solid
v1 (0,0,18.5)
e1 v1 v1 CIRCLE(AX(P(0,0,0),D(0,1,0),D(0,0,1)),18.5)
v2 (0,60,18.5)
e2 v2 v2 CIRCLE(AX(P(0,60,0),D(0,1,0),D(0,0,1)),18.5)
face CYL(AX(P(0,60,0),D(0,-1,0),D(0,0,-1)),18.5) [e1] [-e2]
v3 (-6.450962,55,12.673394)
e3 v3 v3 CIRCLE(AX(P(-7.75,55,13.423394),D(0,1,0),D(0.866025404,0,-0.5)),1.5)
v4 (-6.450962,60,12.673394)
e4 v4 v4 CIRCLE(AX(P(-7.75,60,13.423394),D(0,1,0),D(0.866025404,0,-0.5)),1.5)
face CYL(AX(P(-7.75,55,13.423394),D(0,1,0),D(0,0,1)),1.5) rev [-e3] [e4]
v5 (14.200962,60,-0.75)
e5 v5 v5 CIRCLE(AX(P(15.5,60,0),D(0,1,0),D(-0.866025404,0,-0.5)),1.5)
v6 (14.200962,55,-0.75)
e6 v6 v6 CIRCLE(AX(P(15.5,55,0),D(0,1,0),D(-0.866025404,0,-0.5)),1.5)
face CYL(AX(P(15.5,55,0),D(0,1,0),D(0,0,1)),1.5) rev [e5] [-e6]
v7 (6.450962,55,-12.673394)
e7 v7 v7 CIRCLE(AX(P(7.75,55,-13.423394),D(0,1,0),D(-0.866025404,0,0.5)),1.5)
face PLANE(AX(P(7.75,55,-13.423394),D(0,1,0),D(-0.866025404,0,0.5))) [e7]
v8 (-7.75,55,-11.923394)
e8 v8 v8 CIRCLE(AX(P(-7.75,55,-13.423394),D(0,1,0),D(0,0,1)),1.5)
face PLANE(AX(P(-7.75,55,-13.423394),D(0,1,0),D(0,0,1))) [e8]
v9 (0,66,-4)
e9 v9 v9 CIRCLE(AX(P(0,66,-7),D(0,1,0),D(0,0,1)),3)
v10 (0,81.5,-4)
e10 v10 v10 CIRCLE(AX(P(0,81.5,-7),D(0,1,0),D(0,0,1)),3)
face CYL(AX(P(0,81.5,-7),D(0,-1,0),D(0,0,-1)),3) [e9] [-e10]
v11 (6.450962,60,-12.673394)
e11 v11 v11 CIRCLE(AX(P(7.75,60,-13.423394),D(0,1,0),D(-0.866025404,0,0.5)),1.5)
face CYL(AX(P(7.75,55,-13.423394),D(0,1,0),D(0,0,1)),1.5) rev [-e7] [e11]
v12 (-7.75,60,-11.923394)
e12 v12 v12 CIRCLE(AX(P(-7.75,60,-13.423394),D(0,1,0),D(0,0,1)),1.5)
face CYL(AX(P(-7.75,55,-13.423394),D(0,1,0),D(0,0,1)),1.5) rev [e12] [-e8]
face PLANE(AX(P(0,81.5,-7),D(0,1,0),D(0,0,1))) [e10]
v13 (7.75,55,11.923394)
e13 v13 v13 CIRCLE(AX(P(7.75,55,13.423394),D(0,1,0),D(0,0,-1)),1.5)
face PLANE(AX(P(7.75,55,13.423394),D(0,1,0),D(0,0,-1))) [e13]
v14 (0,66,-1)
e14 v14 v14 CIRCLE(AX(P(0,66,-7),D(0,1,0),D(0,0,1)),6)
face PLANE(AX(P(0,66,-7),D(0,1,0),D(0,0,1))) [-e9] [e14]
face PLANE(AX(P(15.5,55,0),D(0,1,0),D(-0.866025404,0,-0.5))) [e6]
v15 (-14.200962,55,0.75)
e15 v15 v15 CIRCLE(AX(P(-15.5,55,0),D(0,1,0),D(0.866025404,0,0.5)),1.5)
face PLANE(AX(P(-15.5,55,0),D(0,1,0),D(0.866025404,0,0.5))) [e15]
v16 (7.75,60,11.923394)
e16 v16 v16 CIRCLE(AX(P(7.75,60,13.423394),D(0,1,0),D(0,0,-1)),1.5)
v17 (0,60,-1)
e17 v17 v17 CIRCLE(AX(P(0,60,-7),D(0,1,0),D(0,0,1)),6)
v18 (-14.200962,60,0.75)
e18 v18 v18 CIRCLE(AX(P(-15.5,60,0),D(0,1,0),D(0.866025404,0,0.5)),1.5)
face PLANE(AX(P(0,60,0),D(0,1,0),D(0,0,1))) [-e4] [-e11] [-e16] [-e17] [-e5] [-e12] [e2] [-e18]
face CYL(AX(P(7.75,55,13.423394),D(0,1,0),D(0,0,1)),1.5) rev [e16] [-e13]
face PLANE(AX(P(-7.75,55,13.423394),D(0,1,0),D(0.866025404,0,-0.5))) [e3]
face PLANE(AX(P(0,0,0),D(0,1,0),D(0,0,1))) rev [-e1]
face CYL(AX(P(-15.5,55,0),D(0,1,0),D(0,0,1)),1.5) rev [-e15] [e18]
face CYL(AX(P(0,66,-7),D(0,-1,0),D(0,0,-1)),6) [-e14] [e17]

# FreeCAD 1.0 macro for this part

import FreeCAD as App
import Part
import Sketcher
from FreeCAD import Vector

doc = App.newDocument("Part")
body = doc.addObject("PartDesign::Body", "Body")

sketch1 = body.newObject("Sketcher::SketchObject", "Sketch")
sketch1.AttachmentSupport = (doc.getObject("XZ_Plane"), [""])
sketch1.MapMode = "FlatFace"
sketch1.addGeometry(Part.Circle(Vector(0, 0, 0), Vector(0, 0, 1), 18.5), False)
sketch1.addConstraint([
    Sketcher.Constraint("Coincident", 0, 3, -1, 1),
    Sketcher.Constraint("Diameter", 0, 37.0),
])
pad1 = body.newObject("PartDesign::Pad", "Pad")
pad1.Profile = sketch1
pad1.Length = 60
pad1.Reversed = True

sketch2 = body.newObject("Sketcher::SketchObject", "Sketch001")
sketch2.AttachmentSupport = (doc.getObject("XZ_Plane"), [""])
sketch2.MapMode = "FlatFace"
sketch2.AttachmentOffset = App.Placement(Vector(0, 0, -60), App.Rotation())
sketch2.addGeometry(Part.Circle(Vector(0, -7, 0), Vector(0, 0, 1), 6), False)
sketch2.addConstraint([
    Sketcher.Constraint("PointOnObject", 0, 3, -2),
    Sketcher.Constraint("Diameter", 0, 12.0),
    Sketcher.Constraint("DistanceY", 0, 3, -1, 1, 7.0),
])
pad2 = body.newObject("PartDesign::Pad", "Pad001")
pad2.Profile = sketch2
pad2.Length = 6
pad2.Reversed = True

sketch3 = body.newObject("Sketcher::SketchObject", "Sketch002")
sketch3.AttachmentSupport = (doc.getObject("XZ_Plane"), [""])
sketch3.MapMode = "FlatFace"
sketch3.AttachmentOffset = App.Placement(Vector(0, 0, -66), App.Rotation())
sketch3.addGeometry(Part.Circle(Vector(0, -7, 0), Vector(0, 0, 1), 3), False)
sketch3.addConstraint([
    Sketcher.Constraint("PointOnObject", 0, 3, -2),
    Sketcher.Constraint("Diameter", 0, 6.0),
    Sketcher.Constraint("DistanceY", 0, 3, -1, 1, 7.0),
])
pad3 = body.newObject("PartDesign::Pad", "Pad002")
pad3.Profile = sketch3
pad3.Length = 15.5
pad3.Reversed = True

sketch4 = body.newObject("Sketcher::SketchObject", "Sketch003")
sketch4.AttachmentSupport = (doc.getObject("XZ_Plane"), [""])
sketch4.MapMode = "FlatFace"
sketch4.AttachmentOffset = App.Placement(Vector(0, 0, -60), App.Rotation())
sketch4.addGeometry(Part.Circle(Vector(-7.75, -13.423394, 0), Vector(0, 0, 1), 1.5), False)
sketch4.addConstraint([
    Sketcher.Constraint("Diameter", 0, 3.0),
    Sketcher.Constraint("DistanceX", 0, 3, -1, 1, 7.75),
    Sketcher.Constraint("DistanceY", 0, 3, -1, 1, 13.423394),
])
pocket1 = body.newObject("PartDesign::Pocket", "Pocket")
pocket1.Profile = sketch4
pocket1.Length = 5
pocket1.Reversed = True
doc.recompute()

polarpattern = body.newObject("PartDesign::PolarPattern", "PolarPattern")
polarpattern.Originals = [pocket1]
polarpattern.Axis = (doc.getObject("Y_Axis"), [""])
polarpattern.Angle = 360
polarpattern.Occurrences = 6
body.Tip = polarpattern

doc.recompute()
